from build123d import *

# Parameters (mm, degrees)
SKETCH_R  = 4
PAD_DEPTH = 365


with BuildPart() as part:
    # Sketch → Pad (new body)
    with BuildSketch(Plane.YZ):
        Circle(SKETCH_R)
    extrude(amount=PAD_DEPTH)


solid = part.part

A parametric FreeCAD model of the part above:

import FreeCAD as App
import Part
import Sketcher
from FreeCAD import Vector

doc = App.newDocument("Part")
params = doc.addObject("Spreadsheet::Sheet", "Params")
for row, (alias, value) in enumerate([
    ("sketch1_diameter", "8 mm"),
    ("pad1_length", "365 mm"),
], start=1):
    params.set(f"A{row}", alias)
    params.set(f"B{row}", "=" + value)
    params.setAlias(f"B{row}", alias)

body = doc.addObject("PartDesign::Body", "Body")

# Sketch on YZ plane
sketch1 = doc.addObject("Sketcher::SketchObject", "Sketch")
body.addObject(sketch1)
sketch1.AttachmentSupport = (doc.YZ_Plane, [""])
sketch1.MapMode = "FlatFace"
sketch1.addGeometry(Part.Circle(Vector(0, 0, 0), Vector(0, 0, 1), 4), False)
sketch1.addConstraint([
    Sketcher.Constraint("Coincident", 0, 3, -1, 1),
    Sketcher.Constraint("Diameter", 0, 8.0),
])
sketch1.setExpression("Constraints[1]", "Params.sketch1_diameter")
pad1 = doc.addObject("PartDesign::Pad", "Pad")
body.addObject(pad1)
pad1.Profile = sketch1
pad1.setExpression("Length", "Params.pad1_length")

doc.recompute()
